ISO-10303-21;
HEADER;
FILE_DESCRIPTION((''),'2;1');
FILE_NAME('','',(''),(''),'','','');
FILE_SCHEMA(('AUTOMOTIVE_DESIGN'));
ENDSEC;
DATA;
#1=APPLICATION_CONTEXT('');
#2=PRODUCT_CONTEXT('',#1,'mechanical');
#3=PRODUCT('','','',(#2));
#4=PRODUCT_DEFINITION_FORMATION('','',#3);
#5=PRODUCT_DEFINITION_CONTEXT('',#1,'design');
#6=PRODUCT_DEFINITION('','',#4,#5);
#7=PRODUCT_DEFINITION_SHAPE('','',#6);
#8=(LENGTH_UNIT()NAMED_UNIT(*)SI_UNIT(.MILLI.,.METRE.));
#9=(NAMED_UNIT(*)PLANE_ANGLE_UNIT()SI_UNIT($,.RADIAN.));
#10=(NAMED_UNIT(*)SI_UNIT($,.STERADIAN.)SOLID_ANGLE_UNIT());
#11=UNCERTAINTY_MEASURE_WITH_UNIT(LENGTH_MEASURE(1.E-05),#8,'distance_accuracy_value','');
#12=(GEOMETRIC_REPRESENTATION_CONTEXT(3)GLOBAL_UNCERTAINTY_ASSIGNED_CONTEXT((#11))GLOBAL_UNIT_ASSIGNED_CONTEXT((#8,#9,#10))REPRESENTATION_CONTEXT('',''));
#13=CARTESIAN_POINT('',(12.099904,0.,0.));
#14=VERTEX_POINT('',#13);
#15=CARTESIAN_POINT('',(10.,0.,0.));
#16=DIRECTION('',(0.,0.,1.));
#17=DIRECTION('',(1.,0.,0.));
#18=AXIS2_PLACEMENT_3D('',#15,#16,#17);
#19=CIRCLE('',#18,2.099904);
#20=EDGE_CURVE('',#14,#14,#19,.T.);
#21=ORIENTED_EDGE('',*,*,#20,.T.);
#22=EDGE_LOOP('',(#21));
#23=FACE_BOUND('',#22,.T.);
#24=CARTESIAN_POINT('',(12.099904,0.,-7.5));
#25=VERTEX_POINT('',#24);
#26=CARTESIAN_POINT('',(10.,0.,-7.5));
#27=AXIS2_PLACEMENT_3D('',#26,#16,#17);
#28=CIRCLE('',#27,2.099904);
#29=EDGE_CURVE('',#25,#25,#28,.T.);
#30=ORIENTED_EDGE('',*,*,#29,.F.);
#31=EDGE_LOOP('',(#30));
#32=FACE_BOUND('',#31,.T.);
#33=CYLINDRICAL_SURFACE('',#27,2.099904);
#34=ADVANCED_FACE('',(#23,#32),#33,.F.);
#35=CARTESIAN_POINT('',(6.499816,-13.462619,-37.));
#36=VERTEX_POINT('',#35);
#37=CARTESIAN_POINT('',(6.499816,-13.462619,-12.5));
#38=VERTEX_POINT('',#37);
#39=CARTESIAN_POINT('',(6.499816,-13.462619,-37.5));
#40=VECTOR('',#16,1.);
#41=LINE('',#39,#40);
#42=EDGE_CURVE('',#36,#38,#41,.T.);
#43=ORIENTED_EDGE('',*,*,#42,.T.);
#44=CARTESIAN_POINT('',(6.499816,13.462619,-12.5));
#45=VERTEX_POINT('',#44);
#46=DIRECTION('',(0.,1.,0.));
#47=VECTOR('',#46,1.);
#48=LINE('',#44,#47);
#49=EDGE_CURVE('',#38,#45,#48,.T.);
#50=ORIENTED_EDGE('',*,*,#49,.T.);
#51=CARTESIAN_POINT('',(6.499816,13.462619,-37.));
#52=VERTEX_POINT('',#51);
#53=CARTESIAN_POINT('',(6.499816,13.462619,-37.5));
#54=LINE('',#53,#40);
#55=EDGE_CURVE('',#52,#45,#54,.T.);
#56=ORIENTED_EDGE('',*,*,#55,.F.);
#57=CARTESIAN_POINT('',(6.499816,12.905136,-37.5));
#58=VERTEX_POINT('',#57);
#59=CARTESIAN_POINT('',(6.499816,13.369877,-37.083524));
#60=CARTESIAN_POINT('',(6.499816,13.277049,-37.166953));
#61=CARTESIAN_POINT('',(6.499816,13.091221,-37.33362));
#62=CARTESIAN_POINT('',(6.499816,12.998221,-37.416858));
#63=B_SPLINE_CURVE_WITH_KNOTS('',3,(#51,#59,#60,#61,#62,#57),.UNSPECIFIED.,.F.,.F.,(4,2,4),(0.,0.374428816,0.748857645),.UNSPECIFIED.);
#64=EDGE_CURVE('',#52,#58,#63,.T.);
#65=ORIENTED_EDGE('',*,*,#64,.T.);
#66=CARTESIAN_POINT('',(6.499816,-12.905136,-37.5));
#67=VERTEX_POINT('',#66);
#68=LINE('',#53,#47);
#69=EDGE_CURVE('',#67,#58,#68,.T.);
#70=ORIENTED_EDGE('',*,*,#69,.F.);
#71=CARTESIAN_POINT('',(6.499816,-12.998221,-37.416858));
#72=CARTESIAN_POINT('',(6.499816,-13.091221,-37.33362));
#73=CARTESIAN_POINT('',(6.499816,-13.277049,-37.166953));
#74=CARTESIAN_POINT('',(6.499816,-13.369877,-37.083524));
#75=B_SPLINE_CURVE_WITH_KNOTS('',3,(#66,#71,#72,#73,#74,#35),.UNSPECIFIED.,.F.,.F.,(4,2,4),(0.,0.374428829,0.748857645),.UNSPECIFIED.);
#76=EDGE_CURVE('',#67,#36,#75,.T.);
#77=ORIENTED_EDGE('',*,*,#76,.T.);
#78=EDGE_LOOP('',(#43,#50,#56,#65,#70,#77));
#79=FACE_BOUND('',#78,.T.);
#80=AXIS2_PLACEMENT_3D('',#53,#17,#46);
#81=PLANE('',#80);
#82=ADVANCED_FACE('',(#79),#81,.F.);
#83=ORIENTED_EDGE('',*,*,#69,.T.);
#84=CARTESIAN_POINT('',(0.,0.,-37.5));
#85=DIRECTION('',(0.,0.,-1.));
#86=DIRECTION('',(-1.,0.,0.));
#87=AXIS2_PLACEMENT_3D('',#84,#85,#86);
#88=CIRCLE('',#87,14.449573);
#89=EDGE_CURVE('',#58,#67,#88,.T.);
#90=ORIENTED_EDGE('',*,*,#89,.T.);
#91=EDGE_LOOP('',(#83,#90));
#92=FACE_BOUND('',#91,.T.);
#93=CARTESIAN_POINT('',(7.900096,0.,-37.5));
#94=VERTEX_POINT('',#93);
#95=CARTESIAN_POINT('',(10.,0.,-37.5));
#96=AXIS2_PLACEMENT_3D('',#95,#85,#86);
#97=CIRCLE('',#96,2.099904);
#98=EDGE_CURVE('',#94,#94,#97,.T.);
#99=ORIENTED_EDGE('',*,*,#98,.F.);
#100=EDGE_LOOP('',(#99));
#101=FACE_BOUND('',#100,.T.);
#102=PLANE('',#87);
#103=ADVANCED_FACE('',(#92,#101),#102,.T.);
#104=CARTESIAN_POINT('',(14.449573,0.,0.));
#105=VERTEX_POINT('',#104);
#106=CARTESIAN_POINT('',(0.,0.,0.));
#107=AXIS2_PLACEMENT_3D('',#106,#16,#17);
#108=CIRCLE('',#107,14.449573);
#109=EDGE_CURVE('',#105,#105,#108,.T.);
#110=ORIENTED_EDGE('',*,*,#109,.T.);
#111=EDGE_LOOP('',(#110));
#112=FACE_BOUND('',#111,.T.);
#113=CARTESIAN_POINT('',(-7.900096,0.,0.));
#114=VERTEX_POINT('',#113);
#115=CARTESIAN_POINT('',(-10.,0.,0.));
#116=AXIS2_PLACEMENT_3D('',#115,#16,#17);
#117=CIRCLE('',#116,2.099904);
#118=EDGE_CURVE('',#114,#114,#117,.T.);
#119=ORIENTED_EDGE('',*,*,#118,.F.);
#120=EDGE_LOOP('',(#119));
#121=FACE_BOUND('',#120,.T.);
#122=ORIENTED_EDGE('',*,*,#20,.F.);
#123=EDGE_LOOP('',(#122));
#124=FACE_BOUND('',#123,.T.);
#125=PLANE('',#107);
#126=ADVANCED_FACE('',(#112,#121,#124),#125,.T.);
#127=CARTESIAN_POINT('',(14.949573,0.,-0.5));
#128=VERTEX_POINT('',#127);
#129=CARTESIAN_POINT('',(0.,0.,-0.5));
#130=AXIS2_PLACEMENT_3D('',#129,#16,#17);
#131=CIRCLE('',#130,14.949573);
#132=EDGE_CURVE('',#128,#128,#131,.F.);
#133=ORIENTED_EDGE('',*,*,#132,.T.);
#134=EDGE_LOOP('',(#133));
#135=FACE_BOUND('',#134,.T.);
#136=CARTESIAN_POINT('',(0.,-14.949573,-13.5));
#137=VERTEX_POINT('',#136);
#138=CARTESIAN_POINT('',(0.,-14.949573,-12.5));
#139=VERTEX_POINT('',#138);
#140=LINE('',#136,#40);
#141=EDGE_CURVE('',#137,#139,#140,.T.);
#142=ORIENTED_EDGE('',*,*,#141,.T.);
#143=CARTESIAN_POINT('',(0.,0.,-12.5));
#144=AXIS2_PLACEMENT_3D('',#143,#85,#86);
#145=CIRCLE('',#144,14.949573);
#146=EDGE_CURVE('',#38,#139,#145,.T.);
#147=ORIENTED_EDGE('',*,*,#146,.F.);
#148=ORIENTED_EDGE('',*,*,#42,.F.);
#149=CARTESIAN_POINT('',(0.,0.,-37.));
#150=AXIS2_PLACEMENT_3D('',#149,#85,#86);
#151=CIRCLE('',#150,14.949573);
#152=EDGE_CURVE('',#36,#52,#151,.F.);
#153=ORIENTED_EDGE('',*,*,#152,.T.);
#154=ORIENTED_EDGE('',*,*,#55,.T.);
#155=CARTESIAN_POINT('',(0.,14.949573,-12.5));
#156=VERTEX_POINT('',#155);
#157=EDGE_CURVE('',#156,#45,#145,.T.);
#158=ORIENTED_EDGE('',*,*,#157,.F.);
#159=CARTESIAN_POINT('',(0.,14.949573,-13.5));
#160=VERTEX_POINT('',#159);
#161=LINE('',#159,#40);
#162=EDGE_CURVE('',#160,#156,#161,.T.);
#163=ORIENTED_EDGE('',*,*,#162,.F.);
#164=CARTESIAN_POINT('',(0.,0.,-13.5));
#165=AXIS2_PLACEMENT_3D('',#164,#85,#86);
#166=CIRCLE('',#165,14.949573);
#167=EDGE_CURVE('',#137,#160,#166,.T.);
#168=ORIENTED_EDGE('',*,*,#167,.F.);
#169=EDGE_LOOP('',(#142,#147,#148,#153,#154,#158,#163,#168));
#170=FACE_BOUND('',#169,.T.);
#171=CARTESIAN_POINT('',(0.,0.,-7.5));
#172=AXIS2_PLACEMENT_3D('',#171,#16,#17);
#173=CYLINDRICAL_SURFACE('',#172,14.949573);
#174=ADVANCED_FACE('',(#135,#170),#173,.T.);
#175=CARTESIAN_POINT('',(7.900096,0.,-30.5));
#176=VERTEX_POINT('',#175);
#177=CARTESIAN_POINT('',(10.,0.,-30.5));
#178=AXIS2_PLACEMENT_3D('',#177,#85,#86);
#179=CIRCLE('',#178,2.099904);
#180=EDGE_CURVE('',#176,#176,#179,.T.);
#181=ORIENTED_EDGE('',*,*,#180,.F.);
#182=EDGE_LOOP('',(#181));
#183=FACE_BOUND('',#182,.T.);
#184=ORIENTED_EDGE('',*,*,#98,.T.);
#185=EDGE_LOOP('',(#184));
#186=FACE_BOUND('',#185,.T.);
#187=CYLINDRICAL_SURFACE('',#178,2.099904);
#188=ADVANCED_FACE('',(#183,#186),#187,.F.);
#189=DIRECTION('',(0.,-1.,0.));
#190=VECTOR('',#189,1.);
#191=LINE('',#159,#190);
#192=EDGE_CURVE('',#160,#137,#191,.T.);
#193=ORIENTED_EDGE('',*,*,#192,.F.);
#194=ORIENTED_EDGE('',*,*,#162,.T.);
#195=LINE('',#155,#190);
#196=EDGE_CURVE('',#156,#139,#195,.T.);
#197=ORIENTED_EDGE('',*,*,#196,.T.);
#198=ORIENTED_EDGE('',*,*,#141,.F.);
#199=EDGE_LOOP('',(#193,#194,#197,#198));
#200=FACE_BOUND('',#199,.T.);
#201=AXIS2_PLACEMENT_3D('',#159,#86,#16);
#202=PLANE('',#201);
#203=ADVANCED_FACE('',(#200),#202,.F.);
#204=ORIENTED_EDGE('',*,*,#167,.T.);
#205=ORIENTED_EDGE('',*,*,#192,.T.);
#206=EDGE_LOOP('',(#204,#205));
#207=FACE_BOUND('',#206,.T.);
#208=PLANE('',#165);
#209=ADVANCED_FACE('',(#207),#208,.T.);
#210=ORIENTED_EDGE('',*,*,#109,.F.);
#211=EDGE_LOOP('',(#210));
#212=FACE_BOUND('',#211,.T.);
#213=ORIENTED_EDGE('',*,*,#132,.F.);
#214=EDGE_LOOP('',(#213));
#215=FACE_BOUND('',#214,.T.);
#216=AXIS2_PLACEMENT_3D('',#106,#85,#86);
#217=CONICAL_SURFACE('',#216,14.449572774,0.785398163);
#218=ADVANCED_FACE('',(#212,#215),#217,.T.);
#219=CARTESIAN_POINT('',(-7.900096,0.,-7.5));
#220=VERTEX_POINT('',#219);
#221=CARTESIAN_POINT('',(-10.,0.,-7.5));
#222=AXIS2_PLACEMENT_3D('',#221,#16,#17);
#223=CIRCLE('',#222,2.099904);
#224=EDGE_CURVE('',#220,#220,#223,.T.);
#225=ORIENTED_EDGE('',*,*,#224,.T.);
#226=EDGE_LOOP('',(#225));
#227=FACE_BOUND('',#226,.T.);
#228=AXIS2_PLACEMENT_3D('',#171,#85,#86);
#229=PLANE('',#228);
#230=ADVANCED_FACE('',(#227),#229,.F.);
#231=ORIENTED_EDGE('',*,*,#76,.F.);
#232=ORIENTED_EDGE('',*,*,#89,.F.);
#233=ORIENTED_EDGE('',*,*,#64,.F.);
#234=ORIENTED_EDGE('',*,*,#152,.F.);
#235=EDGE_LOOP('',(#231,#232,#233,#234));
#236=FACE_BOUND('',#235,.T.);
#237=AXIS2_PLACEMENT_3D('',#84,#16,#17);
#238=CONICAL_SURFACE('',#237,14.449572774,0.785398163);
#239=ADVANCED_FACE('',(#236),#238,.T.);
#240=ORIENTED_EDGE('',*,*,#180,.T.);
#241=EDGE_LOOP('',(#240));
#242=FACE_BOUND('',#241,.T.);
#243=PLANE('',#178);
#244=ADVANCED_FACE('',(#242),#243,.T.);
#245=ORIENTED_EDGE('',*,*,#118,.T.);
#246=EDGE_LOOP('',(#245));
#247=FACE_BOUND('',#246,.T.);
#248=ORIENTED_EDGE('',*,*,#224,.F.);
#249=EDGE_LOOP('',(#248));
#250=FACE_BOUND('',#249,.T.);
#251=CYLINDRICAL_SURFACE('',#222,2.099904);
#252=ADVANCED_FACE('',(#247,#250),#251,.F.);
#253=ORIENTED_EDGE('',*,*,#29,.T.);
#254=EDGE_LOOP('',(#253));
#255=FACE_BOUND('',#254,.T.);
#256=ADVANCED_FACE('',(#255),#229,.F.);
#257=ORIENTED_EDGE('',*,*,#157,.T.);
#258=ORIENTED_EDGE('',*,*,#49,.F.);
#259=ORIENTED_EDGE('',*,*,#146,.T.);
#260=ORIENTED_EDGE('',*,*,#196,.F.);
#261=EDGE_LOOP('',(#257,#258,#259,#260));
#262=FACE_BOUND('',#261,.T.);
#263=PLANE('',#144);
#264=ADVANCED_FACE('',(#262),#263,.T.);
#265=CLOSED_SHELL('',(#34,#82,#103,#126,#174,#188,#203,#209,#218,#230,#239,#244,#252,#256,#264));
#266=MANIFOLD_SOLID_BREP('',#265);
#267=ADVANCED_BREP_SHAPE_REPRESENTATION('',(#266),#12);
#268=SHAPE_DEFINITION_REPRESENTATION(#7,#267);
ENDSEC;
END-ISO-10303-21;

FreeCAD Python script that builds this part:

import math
import FreeCAD as App
import Part
import Sketcher

V = App.Vector


def edges_at(feature, points):
    """Names of the edges that pass closest to the given points."""
    edges = feature.Shape.Edges
    near = lambda p: min(range(len(edges)), key=lambda i: edges[i].distToShape(Part.Vertex(*p))[0])
    return sorted({f"Edge{near(p) + 1}" for p in points})

doc = App.newDocument("Part")
params = doc.addObject("Spreadsheet::Sheet", "Params")
for row, (alias, value) in enumerate([
    ("pad1_length", "7.5 mm"),
    ("pad2_length", "5 mm"),
    ("pad3_length", "1 mm"),
    ("pad4_length", "25 mm"),
    ("pocket1_length", "7 mm"),
    ("chamfer_size", "0.5 mm"),
    ("chamfer2_size", "0.5 mm"),
], start=1):
    params.set(f"A{row}", alias)
    params.set(f"B{row}", "=" + value)
    params.setAlias(f"B{row}", alias)

body = doc.addObject("PartDesign::Body", "Body")

sketch1 = doc.addObject("Sketcher::SketchObject", "Sketch")
body.addObject(sketch1)
sketch1.AttachmentSupport = (doc.XY_Plane, [""])
sketch1.MapMode = "FlatFace"
sketch1.addGeometry(Part.Circle(V(0, 0, 0), V(0, 0, 1), 14.9), False)
sketch1.addGeometry(Part.Circle(V(10, 0, 0), V(0, 0, 1), 2.1), False)
sketch1.addGeometry(Part.Circle(V(-10, 0, 0), V(0, 0, 1), 2.1), False)
sketch1.addConstraint(Sketcher.Constraint("Coincident", 0, 3, -1, 1))
sketch1.addConstraint(Sketcher.Constraint("Equal", 1, 2))
sketch1.addConstraint(Sketcher.Constraint("Symmetric", 1, 3, 2, 3, -1, 1))
sketch1.addConstraint(Sketcher.Constraint("PointOnObject", 1, 3, -1))
sketch1.addConstraint(Sketcher.Constraint("DistanceX", -1, 1, 1, 3, 10.0))
sketch1.addConstraint(Sketcher.Constraint("Diameter", 0, 29.899146))
sketch1.addConstraint(Sketcher.Constraint("Diameter", 1, 4.199808))
pad1 = doc.addObject("PartDesign::Pad", "Pad")
body.addObject(pad1)
pad1.Profile = sketch1
pad1.setExpression("Length", "Params.pad1_length")
pad1.Reversed = True

sketch2 = doc.addObject("Sketcher::SketchObject", "Sketch001")
body.addObject(sketch2)
sketch2.AttachmentSupport = (doc.XY_Plane, [""])
sketch2.MapMode = "FlatFace"
sketch2.AttachmentOffset = App.Placement(V(0, 0, -7.5), App.Rotation())
sketch2.addGeometry(Part.Circle(V(0, 0, 0), V(0, 0, 1), 15), False)
sketch2.addConstraint(Sketcher.Constraint("Coincident", 0, 3, -1, 1))
sketch2.addConstraint(Sketcher.Constraint("Diameter", 0, 29.899146))
pad2 = doc.addObject("PartDesign::Pad", "Pad001")
body.addObject(pad2)
pad2.Profile = sketch2
pad2.setExpression("Length", "Params.pad2_length")
pad2.Reversed = True

sketch3 = doc.addObject("Sketcher::SketchObject", "Sketch002")
body.addObject(sketch3)
sketch3.AttachmentSupport = (doc.XY_Plane, [""])
sketch3.MapMode = "FlatFace"
sketch3.AttachmentOffset = App.Placement(V(0, 0, -12.5), App.Rotation())
sketch3.addGeometry(Part.LineSegment(V(0, 15, 0), V(0, -15, 0)), False)
sketch3.addGeometry(Part.ArcOfCircle(Part.Circle(V(0, 0, 0), V(0, 0, 1), 15), math.radians(90), math.radians(270)), False)
sketch3.addConstraint(Sketcher.Constraint("Coincident", 0, 1, 1, 1))
sketch3.addConstraint(Sketcher.Constraint("Coincident", 1, 2, 0, 2))
sketch3.addConstraint(Sketcher.Constraint("Vertical", 0))
sketch3.addConstraint(Sketcher.Constraint("Coincident", 1, 3, -1, 1))
sketch3.addConstraint(Sketcher.Constraint("PointOnObject", 0, 1, -2))
sketch3.addConstraint(Sketcher.Constraint("Radius", 1, 14.949573))
pad3 = doc.addObject("PartDesign::Pad", "Pad002")
body.addObject(pad3)
pad3.Profile = sketch3
pad3.setExpression("Length", "Params.pad3_length")
pad3.Reversed = True

sketch4 = doc.addObject("Sketcher::SketchObject", "Sketch003")
body.addObject(sketch4)
sketch4.AttachmentSupport = (doc.XY_Plane, [""])
sketch4.MapMode = "FlatFace"
sketch4.AttachmentOffset = App.Placement(V(0, 0, -12.5), App.Rotation())
sketch4.addGeometry(Part.LineSegment(V(6, -13, 0), V(6, 13, 0)), False)
sketch4.addGeometry(Part.ArcOfCircle(Part.Circle(V(0, 0, 0), V(0, 0, 1), 15), math.radians(-64), math.radians(64)), False)
sketch4.addConstraint(Sketcher.Constraint("Coincident", 0, 1, 1, 1))
sketch4.addConstraint(Sketcher.Constraint("Coincident", 1, 2, 0, 2))
sketch4.addConstraint(Sketcher.Constraint("Vertical", 0))
sketch4.addConstraint(Sketcher.Constraint("Coincident", 1, 3, -1, 1))
sketch4.addConstraint(Sketcher.Constraint("Radius", 1, 14.949573))
sketch4.addConstraint(Sketcher.Constraint("DistanceY", 0, 1, 0, 2, 26.925239))
pad4 = doc.addObject("PartDesign::Pad", "Pad003")
body.addObject(pad4)
pad4.Profile = sketch4
pad4.setExpression("Length", "Params.pad4_length")
pad4.Reversed = True

sketch5 = doc.addObject("Sketcher::SketchObject", "Sketch004")
body.addObject(sketch5)
sketch5.AttachmentSupport = (doc.XY_Plane, [""])
sketch5.MapMode = "FlatFace"
sketch5.AttachmentOffset = App.Placement(V(0, 0, -37.5), App.Rotation())
sketch5.addGeometry(Part.Circle(V(10, 0, 0), V(0, 0, 1), 2.1), False)
sketch5.addConstraint(Sketcher.Constraint("PointOnObject", 0, 3, -1))
sketch5.addConstraint(Sketcher.Constraint("DistanceX", -1, 1, 0, 3, 10.0))
sketch5.addConstraint(Sketcher.Constraint("Diameter", 0, 4.199808))
pocket1 = doc.addObject("PartDesign::Pocket", "Pocket")
body.addObject(pocket1)
pocket1.Profile = sketch5
pocket1.setExpression("Length", "Params.pocket1_length")
pocket1.Reversed = True
doc.recompute()

chamfer = doc.addObject("PartDesign::Chamfer", "Chamfer")
body.addObject(chamfer)
chamfer.Base = (pocket1, edges_at(pocket1, [(14.95, 0, -37.5)]))
chamfer.setExpression("Size", "Params.chamfer_size")
doc.recompute()

chamfer2 = doc.addObject("PartDesign::Chamfer", "Chamfer001")
body.addObject(chamfer2)
chamfer2.Base = (chamfer, edges_at(chamfer, [(-14.95, 0, 0)]))
chamfer2.setExpression("Size", "Params.chamfer2_size")

doc.recompute()
